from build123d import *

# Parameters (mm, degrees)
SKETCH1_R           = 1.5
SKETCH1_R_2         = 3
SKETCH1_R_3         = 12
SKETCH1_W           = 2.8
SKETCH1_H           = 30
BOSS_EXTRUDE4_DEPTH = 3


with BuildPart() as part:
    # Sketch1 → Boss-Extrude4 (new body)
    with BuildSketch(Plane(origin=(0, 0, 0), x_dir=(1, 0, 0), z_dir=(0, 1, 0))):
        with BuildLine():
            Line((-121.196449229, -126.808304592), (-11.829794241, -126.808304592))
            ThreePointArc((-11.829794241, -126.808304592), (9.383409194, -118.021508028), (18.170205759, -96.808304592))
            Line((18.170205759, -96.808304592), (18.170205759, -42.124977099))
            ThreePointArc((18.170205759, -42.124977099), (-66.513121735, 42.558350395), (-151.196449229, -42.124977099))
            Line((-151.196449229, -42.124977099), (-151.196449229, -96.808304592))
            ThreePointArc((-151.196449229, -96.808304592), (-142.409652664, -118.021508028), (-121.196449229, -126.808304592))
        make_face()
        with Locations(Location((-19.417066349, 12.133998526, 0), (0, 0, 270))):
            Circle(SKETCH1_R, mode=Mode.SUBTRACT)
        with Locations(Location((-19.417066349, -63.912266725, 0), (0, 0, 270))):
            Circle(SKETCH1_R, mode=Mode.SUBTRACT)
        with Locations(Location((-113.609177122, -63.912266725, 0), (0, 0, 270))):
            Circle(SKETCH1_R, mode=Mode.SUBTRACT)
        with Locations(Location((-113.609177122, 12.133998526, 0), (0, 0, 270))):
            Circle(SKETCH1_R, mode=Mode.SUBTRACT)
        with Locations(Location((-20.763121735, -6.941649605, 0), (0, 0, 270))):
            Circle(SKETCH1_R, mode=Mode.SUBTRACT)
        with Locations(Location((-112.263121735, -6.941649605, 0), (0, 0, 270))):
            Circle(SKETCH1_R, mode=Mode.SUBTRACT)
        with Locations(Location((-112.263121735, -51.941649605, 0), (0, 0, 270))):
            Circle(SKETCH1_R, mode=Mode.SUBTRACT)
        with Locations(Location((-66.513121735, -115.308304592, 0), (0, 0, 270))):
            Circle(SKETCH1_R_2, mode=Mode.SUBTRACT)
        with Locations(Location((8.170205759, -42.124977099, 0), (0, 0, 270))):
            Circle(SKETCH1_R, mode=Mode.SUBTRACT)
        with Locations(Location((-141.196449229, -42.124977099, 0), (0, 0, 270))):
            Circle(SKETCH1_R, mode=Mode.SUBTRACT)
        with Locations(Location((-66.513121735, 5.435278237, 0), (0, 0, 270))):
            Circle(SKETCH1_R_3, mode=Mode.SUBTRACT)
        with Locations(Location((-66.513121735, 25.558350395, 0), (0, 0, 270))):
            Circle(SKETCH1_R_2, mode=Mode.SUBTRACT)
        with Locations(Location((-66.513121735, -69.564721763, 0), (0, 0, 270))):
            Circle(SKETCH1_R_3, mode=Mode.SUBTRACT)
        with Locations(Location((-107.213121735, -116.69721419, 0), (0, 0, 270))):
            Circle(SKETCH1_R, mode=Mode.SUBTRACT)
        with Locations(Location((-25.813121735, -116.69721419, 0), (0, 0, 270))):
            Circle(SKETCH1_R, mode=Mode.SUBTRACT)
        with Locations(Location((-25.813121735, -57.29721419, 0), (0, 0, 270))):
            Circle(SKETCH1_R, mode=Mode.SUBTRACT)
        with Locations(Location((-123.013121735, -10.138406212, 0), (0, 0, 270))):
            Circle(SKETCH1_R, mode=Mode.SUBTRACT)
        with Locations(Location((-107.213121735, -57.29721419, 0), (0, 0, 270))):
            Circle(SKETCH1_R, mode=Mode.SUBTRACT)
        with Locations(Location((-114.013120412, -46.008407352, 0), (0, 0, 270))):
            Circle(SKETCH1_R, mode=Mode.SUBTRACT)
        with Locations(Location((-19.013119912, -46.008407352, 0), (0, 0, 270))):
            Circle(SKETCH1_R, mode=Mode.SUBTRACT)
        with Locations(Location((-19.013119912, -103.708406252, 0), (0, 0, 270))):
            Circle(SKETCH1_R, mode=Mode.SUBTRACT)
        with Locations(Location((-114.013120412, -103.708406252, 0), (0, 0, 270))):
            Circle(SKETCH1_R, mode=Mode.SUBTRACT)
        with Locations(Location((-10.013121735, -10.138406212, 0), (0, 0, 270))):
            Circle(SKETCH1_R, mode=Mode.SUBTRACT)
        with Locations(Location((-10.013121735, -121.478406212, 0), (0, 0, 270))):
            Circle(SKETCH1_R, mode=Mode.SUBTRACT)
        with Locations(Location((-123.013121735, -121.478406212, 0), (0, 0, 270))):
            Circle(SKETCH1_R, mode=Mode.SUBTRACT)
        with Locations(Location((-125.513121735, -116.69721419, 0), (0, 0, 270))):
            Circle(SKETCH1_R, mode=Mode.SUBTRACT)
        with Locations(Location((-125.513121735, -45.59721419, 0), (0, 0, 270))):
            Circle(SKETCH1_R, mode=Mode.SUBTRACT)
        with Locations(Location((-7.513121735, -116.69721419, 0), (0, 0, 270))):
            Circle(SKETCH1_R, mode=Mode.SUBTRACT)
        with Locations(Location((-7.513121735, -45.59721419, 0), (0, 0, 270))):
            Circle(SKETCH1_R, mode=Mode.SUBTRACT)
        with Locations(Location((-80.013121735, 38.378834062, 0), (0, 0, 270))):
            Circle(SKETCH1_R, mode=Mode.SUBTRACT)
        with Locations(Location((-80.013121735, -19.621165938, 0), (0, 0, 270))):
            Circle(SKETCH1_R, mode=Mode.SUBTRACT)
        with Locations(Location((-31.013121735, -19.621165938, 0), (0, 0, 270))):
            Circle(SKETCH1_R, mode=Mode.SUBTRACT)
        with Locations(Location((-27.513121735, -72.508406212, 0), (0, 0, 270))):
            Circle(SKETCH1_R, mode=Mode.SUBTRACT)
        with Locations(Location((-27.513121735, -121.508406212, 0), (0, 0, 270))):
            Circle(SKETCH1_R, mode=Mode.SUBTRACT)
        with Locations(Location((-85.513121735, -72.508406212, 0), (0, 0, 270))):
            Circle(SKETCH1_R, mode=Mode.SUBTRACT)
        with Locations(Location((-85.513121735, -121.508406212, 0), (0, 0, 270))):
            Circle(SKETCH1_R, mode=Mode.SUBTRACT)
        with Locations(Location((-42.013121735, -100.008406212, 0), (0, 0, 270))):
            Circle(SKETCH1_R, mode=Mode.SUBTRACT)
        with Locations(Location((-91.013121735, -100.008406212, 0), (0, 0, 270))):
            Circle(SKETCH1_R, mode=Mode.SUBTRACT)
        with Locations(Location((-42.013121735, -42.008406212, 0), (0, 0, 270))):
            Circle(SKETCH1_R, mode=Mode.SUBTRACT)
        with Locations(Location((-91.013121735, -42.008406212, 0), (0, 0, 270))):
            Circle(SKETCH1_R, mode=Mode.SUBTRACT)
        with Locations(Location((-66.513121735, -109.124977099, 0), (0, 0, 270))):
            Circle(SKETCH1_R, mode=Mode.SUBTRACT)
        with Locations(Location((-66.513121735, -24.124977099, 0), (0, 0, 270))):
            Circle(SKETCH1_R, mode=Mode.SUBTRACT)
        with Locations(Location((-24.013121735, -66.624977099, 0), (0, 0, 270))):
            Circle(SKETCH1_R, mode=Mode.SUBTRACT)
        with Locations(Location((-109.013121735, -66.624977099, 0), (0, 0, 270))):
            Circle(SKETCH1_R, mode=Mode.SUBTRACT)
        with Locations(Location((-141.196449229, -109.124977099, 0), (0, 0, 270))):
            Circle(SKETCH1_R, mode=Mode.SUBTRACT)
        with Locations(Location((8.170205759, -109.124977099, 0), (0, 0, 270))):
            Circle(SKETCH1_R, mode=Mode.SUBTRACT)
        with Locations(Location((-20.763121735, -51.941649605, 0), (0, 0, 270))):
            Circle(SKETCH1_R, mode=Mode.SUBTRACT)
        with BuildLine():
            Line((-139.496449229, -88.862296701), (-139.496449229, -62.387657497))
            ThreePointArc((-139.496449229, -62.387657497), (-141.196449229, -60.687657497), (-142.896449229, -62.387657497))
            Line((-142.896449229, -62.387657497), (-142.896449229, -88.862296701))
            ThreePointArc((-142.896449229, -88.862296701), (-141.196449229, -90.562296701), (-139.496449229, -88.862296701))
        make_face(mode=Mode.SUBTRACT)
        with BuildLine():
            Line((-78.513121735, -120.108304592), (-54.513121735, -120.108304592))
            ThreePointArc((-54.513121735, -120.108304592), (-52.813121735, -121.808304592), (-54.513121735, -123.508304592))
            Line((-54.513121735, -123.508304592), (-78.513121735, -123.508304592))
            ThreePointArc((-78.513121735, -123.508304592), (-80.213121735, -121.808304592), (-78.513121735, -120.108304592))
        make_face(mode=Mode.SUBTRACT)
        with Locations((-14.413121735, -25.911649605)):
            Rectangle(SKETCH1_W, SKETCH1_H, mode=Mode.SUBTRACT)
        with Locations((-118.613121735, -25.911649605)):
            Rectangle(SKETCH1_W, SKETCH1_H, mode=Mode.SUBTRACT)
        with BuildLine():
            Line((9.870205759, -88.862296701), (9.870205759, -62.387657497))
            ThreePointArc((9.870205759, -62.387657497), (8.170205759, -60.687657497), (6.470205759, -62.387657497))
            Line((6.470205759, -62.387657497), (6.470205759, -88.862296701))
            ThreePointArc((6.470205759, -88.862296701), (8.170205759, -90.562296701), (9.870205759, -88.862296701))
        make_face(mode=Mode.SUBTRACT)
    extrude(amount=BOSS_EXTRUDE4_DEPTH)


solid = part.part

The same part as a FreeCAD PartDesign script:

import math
import FreeCAD as App
import Part
import Sketcher
from FreeCAD import Vector

doc = App.newDocument("Part")
body = doc.addObject("PartDesign::Body", "Body")

# Sketch on XZ plane
sketch1 = body.newObject("Sketcher::SketchObject", "Sketch")
sketch1.AttachmentSupport = (doc.getObject("XZ_Plane"), [""])
sketch1.MapMode = "FlatFace"
sketch1.addGeometry([
    Part.LineSegment(Vector(-121.2, 126.8, 0), Vector(-11.8, 126.8, 0)),  # 0
    Part.ArcOfCircle(Part.Circle(Vector(-11.8, 96.8, 0), Vector(0, 0, 1), 30), math.radians(0), math.radians(90)),  # 1
    Part.LineSegment(Vector(18.2, 96.8, 0), Vector(18.2, 42.1, 0)),  # 2
    Part.ArcOfCircle(Part.Circle(Vector(-66.5, 42.1, 0), Vector(0, 0, 1), 84.7), math.radians(180), math.radians(360)),  # 3
    Part.LineSegment(Vector(-151.2, 42.1, 0), Vector(-151.2, 96.8, 0)),  # 4
    Part.ArcOfCircle(Part.Circle(Vector(-121.2, 96.8, 0), Vector(0, 0, 1), 30), math.radians(90), math.radians(180)),  # 5
    Part.Circle(Vector(-125.5, 116.7, 0), Vector(0, 0, 1), 1.5),  # 6
    Part.Circle(Vector(-141.2, 109.1, 0), Vector(0, 0, 1), 1.5),  # 7
    Part.Circle(Vector(-123, 121.5, 0), Vector(0, 0, 1), 1.5),  # 8
    Part.Circle(Vector(-107.2, 116.7, 0), Vector(0, 0, 1), 1.5),  # 9
    Part.Circle(Vector(-114, 103.7, 0), Vector(0, 0, 1), 1.5),  # 10
    Part.Circle(Vector(-85.5, 121.5, 0), Vector(0, 0, 1), 1.5),  # 11
    Part.Circle(Vector(-91, 100, 0), Vector(0, 0, 1), 1.5),  # 12
    Part.LineSegment(Vector(-139.5, 62.4, 0), Vector(-139.5, 88.9, 0)),  # 13
    Part.ArcOfCircle(Part.Circle(Vector(-141.2, 88.9, 0), Vector(0, 0, 1), 1.7), math.radians(0), math.radians(180)),  # 14
    Part.LineSegment(Vector(-142.9, 88.9, 0), Vector(-142.9, 62.4, 0)),  # 15
    Part.ArcOfCircle(Part.Circle(Vector(-141.2, 62.4, 0), Vector(0, 0, 1), 1.7), math.radians(180), math.radians(360)),  # 16
    Part.Circle(Vector(-113.6, 63.9, 0), Vector(0, 0, 1), 1.5),  # 17
    Part.Circle(Vector(-109, 66.6, 0), Vector(0, 0, 1), 1.5),  # 18
    Part.Circle(Vector(-141.2, 42.1, 0), Vector(0, 0, 1), 1.5),  # 19
    Part.Circle(Vector(-125.5, 45.6, 0), Vector(0, 0, 1), 1.5),  # 20
    Part.Circle(Vector(-107.2, 57.3, 0), Vector(0, 0, 1), 1.5),  # 21
    Part.Circle(Vector(-112.3, 51.9, 0), Vector(0, 0, 1), 1.5),  # 22
    Part.Circle(Vector(-114, 46, 0), Vector(0, 0, 1), 1.5),  # 23
    Part.Circle(Vector(-85.5, 72.5, 0), Vector(0, 0, 1), 1.5),  # 24
    Part.Circle(Vector(-91, 42, 0), Vector(0, 0, 1), 1.5),  # 25
    Part.ArcOfCircle(Part.Circle(Vector(-78.5, 121.8, 0), Vector(0, 0, 1), 1.7), math.radians(90), math.radians(270)),  # 26
    Part.LineSegment(Vector(-78.5, 120.1, 0), Vector(-54.5, 120.1, 0)),  # 27
    Part.ArcOfCircle(Part.Circle(Vector(-54.5, 121.8, 0), Vector(0, 0, 1), 1.7), math.radians(-90), math.radians(90)),  # 28
    Part.LineSegment(Vector(-54.5, 123.5, 0), Vector(-78.5, 123.5, 0)),  # 29
    Part.Circle(Vector(-66.5, 115.3, 0), Vector(0, 0, 1), 3),  # 30
    Part.Circle(Vector(-66.5, 109.1, 0), Vector(0, 0, 1), 1.5),  # 31
    Part.Circle(Vector(-42, 100, 0), Vector(0, 0, 1), 1.5),  # 32
    Part.Circle(Vector(-27.5, 121.5, 0), Vector(0, 0, 1), 1.5),  # 33
    Part.Circle(Vector(-25.8, 116.7, 0), Vector(0, 0, 1), 1.5),  # 34
    Part.Circle(Vector(-10, 121.5, 0), Vector(0, 0, 1), 1.5),  # 35
    Part.Circle(Vector(-19, 103.7, 0), Vector(0, 0, 1), 1.5),  # 36
    Part.Circle(Vector(-7.5, 116.7, 0), Vector(0, 0, 1), 1.5),  # 37
    Part.Circle(Vector(8.2, 109.1, 0), Vector(0, 0, 1), 1.5),  # 38
    Part.Circle(Vector(-66.5, 69.6, 0), Vector(0, 0, 1), 12),  # 39
    Part.Circle(Vector(-42, 42, 0), Vector(0, 0, 1), 1.5),  # 40
    Part.Circle(Vector(-27.5, 72.5, 0), Vector(0, 0, 1), 1.5),  # 41
    Part.Circle(Vector(-24, 66.6, 0), Vector(0, 0, 1), 1.5),  # 42
    Part.Circle(Vector(-19.4, 63.9, 0), Vector(0, 0, 1), 1.5),  # 43
    Part.LineSegment(Vector(9.9, 62.4, 0), Vector(9.9, 88.9, 0)),  # 44
    Part.ArcOfCircle(Part.Circle(Vector(8.2, 88.9, 0), Vector(0, 0, 1), 1.7), math.radians(0), math.radians(180)),  # 45
    Part.LineSegment(Vector(6.5, 88.9, 0), Vector(6.5, 62.4, 0)),  # 46
    Part.ArcOfCircle(Part.Circle(Vector(8.2, 62.4, 0), Vector(0, 0, 1), 1.7), math.radians(180), math.radians(360)),  # 47
    Part.Circle(Vector(-25.8, 57.3, 0), Vector(0, 0, 1), 1.5),  # 48
    Part.Circle(Vector(-20.8, 51.9, 0), Vector(0, 0, 1), 1.5),  # 49
    Part.Circle(Vector(-19, 46, 0), Vector(0, 0, 1), 1.5),  # 50
    Part.Circle(Vector(-7.5, 45.6, 0), Vector(0, 0, 1), 1.5),  # 51
    Part.Circle(Vector(8.2, 42.1, 0), Vector(0, 0, 1), 1.5),  # 52
    Part.LineSegment(Vector(-117.2, 40.9, 0), Vector(-120, 40.9, 0)),  # 53
    Part.LineSegment(Vector(-120, 40.9, 0), Vector(-120, 10.9, 0)),  # 54
    Part.LineSegment(Vector(-120, 10.9, 0), Vector(-117.2, 10.9, 0)),  # 55
    Part.LineSegment(Vector(-117.2, 10.9, 0), Vector(-117.2, 40.9, 0)),  # 56
    Part.Circle(Vector(-123, 10.1, 0), Vector(0, 0, 1), 1.5),  # 57
    Part.Circle(Vector(-112.3, 6.9, 0), Vector(0, 0, 1), 1.5),  # 58
    Part.Circle(Vector(-80, 19.6, 0), Vector(0, 0, 1), 1.5),  # 59
    Part.Circle(Vector(-113.6, -12.1, 0), Vector(0, 0, 1), 1.5),  # 60
    Part.Circle(Vector(-80, -38.4, 0), Vector(0, 0, 1), 1.5),  # 61
    Part.Circle(Vector(-66.5, 24.1, 0), Vector(0, 0, 1), 1.5),  # 62
    Part.Circle(Vector(-31, 19.6, 0), Vector(0, 0, 1), 1.5),  # 63
    Part.LineSegment(Vector(-13, 40.9, 0), Vector(-15.8, 40.9, 0)),  # 64
    Part.LineSegment(Vector(-15.8, 40.9, 0), Vector(-15.8, 10.9, 0)),  # 65
    Part.LineSegment(Vector(-15.8, 10.9, 0), Vector(-13, 10.9, 0)),  # 66
    Part.LineSegment(Vector(-13, 10.9, 0), Vector(-13, 40.9, 0)),  # 67
    Part.Circle(Vector(-20.8, 6.9, 0), Vector(0, 0, 1), 1.5),  # 68
    Part.Circle(Vector(-10, 10.1, 0), Vector(0, 0, 1), 1.5),  # 69
    Part.Circle(Vector(-66.5, -5.4, 0), Vector(0, 0, 1), 12),  # 70
    Part.Circle(Vector(-66.5, -25.6, 0), Vector(0, 0, 1), 3),  # 71
    Part.Circle(Vector(-19.4, -12.1, 0), Vector(0, 0, 1), 1.5),  # 72
], False)
sketch1.addConstraint([
    Sketcher.Constraint("Tangent", 0, 2, 1, 2),
    Sketcher.Constraint("Tangent", 1, 1, 2, 1),
    Sketcher.Constraint("Tangent", 2, 2, 3, 2),
    Sketcher.Constraint("Tangent", 3, 1, 4, 1),
    Sketcher.Constraint("Tangent", 4, 2, 5, 2),
    Sketcher.Constraint("Tangent", 5, 1, 0, 1),
    Sketcher.Constraint("Tangent", 13, 2, 14, 1),
    Sketcher.Constraint("Tangent", 14, 2, 15, 1),
    Sketcher.Constraint("Tangent", 15, 2, 16, 1),
    Sketcher.Constraint("Tangent", 16, 2, 13, 1),
    Sketcher.Constraint("Tangent", 26, 2, 27, 1),
    Sketcher.Constraint("Tangent", 27, 2, 28, 1),
    Sketcher.Constraint("Tangent", 28, 2, 29, 1),
    Sketcher.Constraint("Tangent", 29, 2, 26, 1),
    Sketcher.Constraint("Tangent", 44, 2, 45, 1),
    Sketcher.Constraint("Tangent", 45, 2, 46, 1),
    Sketcher.Constraint("Tangent", 46, 2, 47, 1),
    Sketcher.Constraint("Tangent", 47, 2, 44, 1),
    Sketcher.Constraint("Coincident", 53, 2, 54, 1),
    Sketcher.Constraint("Coincident", 54, 2, 55, 1),
    Sketcher.Constraint("Coincident", 55, 2, 56, 1),
    Sketcher.Constraint("Coincident", 56, 2, 53, 1),
    Sketcher.Constraint("Coincident", 64, 2, 65, 1),
    Sketcher.Constraint("Coincident", 65, 2, 66, 1),
    Sketcher.Constraint("Coincident", 66, 2, 67, 1),
    Sketcher.Constraint("Coincident", 67, 2, 64, 1),
    Sketcher.Constraint("Horizontal", 0),
    Sketcher.Constraint("Vertical", 2),
    Sketcher.Constraint("Vertical", 4),
    Sketcher.Constraint("Vertical", 13),
    Sketcher.Constraint("Vertical", 15),
    Sketcher.Constraint("Horizontal", 27),
    Sketcher.Constraint("Horizontal", 29),
    Sketcher.Constraint("Vertical", 44),
    Sketcher.Constraint("Vertical", 46),
    Sketcher.Constraint("Horizontal", 53),
    Sketcher.Constraint("Vertical", 54),
    Sketcher.Constraint("Horizontal", 55),
    Sketcher.Constraint("Vertical", 56),
    Sketcher.Constraint("Horizontal", 64),
    Sketcher.Constraint("Vertical", 65),
    Sketcher.Constraint("Horizontal", 66),
    Sketcher.Constraint("Vertical", 67),
    Sketcher.Constraint("Equal", 1, 5),
    Sketcher.Constraint("Equal", 6, 7),
    Sketcher.Constraint("Equal", 7, 8),
    Sketcher.Constraint("Equal", 8, 9),
    Sketcher.Constraint("Equal", 9, 10),
    Sketcher.Constraint("Equal", 10, 11),
    Sketcher.Constraint("Equal", 11, 12),
    Sketcher.Constraint("Equal", 12, 17),
    Sketcher.Constraint("Equal", 17, 18),
    Sketcher.Constraint("Equal", 18, 19),
    Sketcher.Constraint("Equal", 19, 20),
    Sketcher.Constraint("Equal", 20, 21),
    Sketcher.Constraint("Equal", 21, 22),
    Sketcher.Constraint("Equal", 22, 23),
    Sketcher.Constraint("Equal", 23, 24),
    Sketcher.Constraint("Equal", 24, 25),
    Sketcher.Constraint("Equal", 16, 26),
    Sketcher.Constraint("Equal", 25, 31),
    Sketcher.Constraint("Equal", 31, 32),
    Sketcher.Constraint("Equal", 32, 33),
    Sketcher.Constraint("Equal", 33, 34),
    Sketcher.Constraint("Equal", 34, 35),
    Sketcher.Constraint("Equal", 35, 36),
    Sketcher.Constraint("Equal", 36, 37),
    Sketcher.Constraint("Equal", 37, 38),
    Sketcher.Constraint("Equal", 38, 40),
    Sketcher.Constraint("Equal", 40, 41),
    Sketcher.Constraint("Equal", 41, 42),
    Sketcher.Constraint("Equal", 42, 43),
    Sketcher.Constraint("Equal", 28, 45),
    Sketcher.Constraint("Equal", 43, 48),
    Sketcher.Constraint("Equal", 48, 49),
    Sketcher.Constraint("Equal", 49, 50),
    Sketcher.Constraint("Equal", 50, 51),
    Sketcher.Constraint("Equal", 51, 52),
    Sketcher.Constraint("Equal", 52, 57),
    Sketcher.Constraint("Equal", 57, 58),
    Sketcher.Constraint("Equal", 58, 59),
    Sketcher.Constraint("Equal", 59, 60),
    Sketcher.Constraint("Equal", 60, 61),
    Sketcher.Constraint("Equal", 61, 62),
    Sketcher.Constraint("Equal", 62, 63),
    Sketcher.Constraint("Equal", 63, 68),
    Sketcher.Constraint("Equal", 68, 69),
    Sketcher.Constraint("Equal", 39, 70),
    Sketcher.Constraint("Equal", 30, 71),
    Sketcher.Constraint("Equal", 69, 72),
    Sketcher.Constraint("Horizontal", 6, 3, 9, 3),
    Sketcher.Constraint("Horizontal", 3, 3, 19, 3),
    Sketcher.Constraint("Horizontal", 7, 3, 31, 3),
    Sketcher.Constraint("Horizontal", 12, 3, 32, 3),
    Sketcher.Constraint("Horizontal", 11, 3, 33, 3),
    Sketcher.Constraint("Horizontal", 9, 3, 34, 3),
    Sketcher.Constraint("Horizontal", 8, 3, 35, 3),
    Sketcher.Constraint("Horizontal", 10, 3, 36, 3),
    Sketcher.Constraint("Horizontal", 34, 3, 37, 3),
    Sketcher.Constraint("Horizontal", 31, 3, 38, 3),
    Sketcher.Constraint("Horizontal", 25, 3, 40, 3),
    Sketcher.Constraint("Horizontal", 24, 3, 41, 3),
    Sketcher.Constraint("Horizontal", 18, 3, 42, 3),
    Sketcher.Constraint("Horizontal", 17, 3, 43, 3),
    Sketcher.Constraint("Horizontal", 14, 3, 45, 3),
    Sketcher.Constraint("Horizontal", 16, 3, 47, 3),
    Sketcher.Constraint("Horizontal", 21, 3, 48, 3),
    Sketcher.Constraint("Horizontal", 22, 3, 49, 3),
    Sketcher.Constraint("Horizontal", 23, 3, 50, 3),
    Sketcher.Constraint("Horizontal", 20, 3, 51, 3),
    Sketcher.Constraint("Horizontal", 19, 3, 52, 3),
    Sketcher.Constraint("Horizontal", 59, 3, 63, 3),
    Sketcher.Constraint("Horizontal", 58, 3, 68, 3),
    Sketcher.Constraint("Horizontal", 57, 3, 69, 3),
    Sketcher.Constraint("Horizontal", 60, 3, 72, 3),
    Sketcher.Constraint("Horizontal", 56, 2, 64, 2),
    Sketcher.Constraint("Horizontal", 55, 2, 65, 2),
    Sketcher.Constraint("Vertical", 7, 3, 14, 3),
    Sketcher.Constraint("Vertical", 16, 3, 19, 3),
    Sketcher.Constraint("Vertical", 6, 3, 20, 3),
    Sketcher.Constraint("Vertical", 9, 3, 21, 3),
    Sketcher.Constraint("Vertical", 10, 3, 23, 3),
    Sketcher.Constraint("Vertical", 11, 3, 24, 3),
    Sketcher.Constraint("Vertical", 12, 3, 25, 3),
    Sketcher.Constraint("Vertical", 3, 3, 30, 3),
    Sketcher.Constraint("Vertical", 30, 3, 31, 3),
    Sketcher.Constraint("Vertical", 31, 3, 39, 3),
    Sketcher.Constraint("Vertical", 32, 3, 40, 3),
    Sketcher.Constraint("Vertical", 33, 3, 41, 3),
    Sketcher.Constraint("Vertical", 38, 3, 45, 3),
    Sketcher.Constraint("Vertical", 34, 3, 48, 3),
    Sketcher.Constraint("Vertical", 36, 3, 50, 3),
    Sketcher.Constraint("Vertical", 37, 3, 51, 3),
    Sketcher.Constraint("Vertical", 47, 3, 52, 3),
    Sketcher.Constraint("Vertical", 8, 3, 57, 3),
    Sketcher.Constraint("Vertical", 22, 3, 58, 3),
    Sketcher.Constraint("Vertical", 17, 3, 60, 3),
    Sketcher.Constraint("Vertical", 59, 3, 61, 3),
    Sketcher.Constraint("Vertical", 39, 3, 62, 3),
    Sketcher.Constraint("Vertical", 49, 3, 68, 3),
    Sketcher.Constraint("Vertical", 35, 3, 69, 3),
    Sketcher.Constraint("Vertical", 62, 3, 70, 3),
    Sketcher.Constraint("Vertical", 70, 3, 71, 3),
    Sketcher.Constraint("Vertical", 43, 3, 72, 3),
    Sketcher.Constraint("Equal", 55, 64),
    Sketcher.Constraint("Diameter", 6, 3.0),
    Sketcher.Constraint("Diameter", 30, 6.0),
    Sketcher.Constraint("Diameter", 39, 24.0),
    Sketcher.Constraint("Radius", 1, 30.0),
    Sketcher.Constraint("Radius", 14, 1.7),
    Sketcher.Constraint("DistanceX", 27, 1, 27, 2, 24.0),
    Sketcher.Constraint("DistanceY", 54, 2, 54, 1, 30.0),
    Sketcher.Constraint("DistanceX", 53, 2, 53, 1, 2.8),
    Sketcher.Constraint("DistanceY", 60, 3, -1, 1, 12.133999),
    Sketcher.Constraint("Radius", 3, 84.683327),
    Sketcher.Constraint("DistanceY", 13, 1, 13, 2, 26.474639),
    Sketcher.Constraint("DistanceY", 2, 2, 2, 1, 54.683327),
    Sketcher.Constraint("DistanceX", 3, 3, -1, 1, 66.513122),
    Sketcher.Constraint("DistanceX", 6, 3, -1, 1, 125.513122),
    Sketcher.Constraint("DistanceX", 7, 3, -1, 1, 141.196449),
    Sketcher.Constraint("DistanceX", 8, 3, -1, 1, 123.013122),
    Sketcher.Constraint("DistanceX", 9, 3, -1, 1, 107.213122),
    Sketcher.Constraint("DistanceX", 10, 3, -1, 1, 114.01312),
    Sketcher.Constraint("DistanceX", 11, 3, -1, 1, 85.513122),
    Sketcher.Constraint("DistanceX", 12, 3, -1, 1, 91.013122),
    Sketcher.Constraint("DistanceX", 18, 3, -1, 1, 109.013122),
    Sketcher.Constraint("DistanceX", 22, 3, -1, 1, 112.263122),
    Sketcher.Constraint("DistanceY", -1, 1, 22, 3, 51.94165),
    Sketcher.Constraint("DistanceX", 26, 3, -1, 1, 78.513122),
    Sketcher.Constraint("DistanceX", 32, 3, -1, 1, 42.013122),
    Sketcher.Constraint("DistanceX", 33, 3, -1, 1, 27.513122),
    Sketcher.Constraint("DistanceX", 34, 3, -1, 1, 25.813122),
    Sketcher.Constraint("DistanceX", 35, 3, -1, 1, 10.013122),
    Sketcher.Constraint("DistanceX", 36, 3, -1, 1, 19.01312),
    Sketcher.Constraint("DistanceX", 37, 3, -1, 1, 7.513122),
    Sketcher.Constraint("DistanceY", -1, 1, 39, 3, 69.564722),
    Sketcher.Constraint("DistanceX", 42, 3, -1, 1, 24.013122),
    Sketcher.Constraint("DistanceX", 49, 3, -1, 1, 20.763122),
    Sketcher.Constraint("DistanceY", -1, 1, 58, 3, 6.94165),
    Sketcher.Constraint("DistanceX", 59, 3, -1, 1, 80.013122),
    Sketcher.Constraint("DistanceX", 63, 3, -1, 1, 31.013122),
    Sketcher.Constraint("DistanceY", 70, 3, -1, 1, 5.435278),
    Sketcher.Constraint("DistanceY", 71, 3, -1, 1, 25.55835),
    Sketcher.Constraint("DistanceX", 53, 2, -1, 1, 120.013122),
    Sketcher.Constraint("DistanceY", -1, 1, 53, 2, 40.91165),
    Sketcher.Constraint("DistanceX", 64, 2, -1, 1, 15.813122),
    Sketcher.Constraint("DistanceY", -1, 1, 1, 3, 96.808305),
    Sketcher.Constraint("DistanceY", -1, 1, 6, 3, 116.697214),
    Sketcher.Constraint("DistanceY", -1, 1, 7, 3, 109.124977),
    Sketcher.Constraint("DistanceY", -1, 1, 8, 3, 121.478406),
    Sketcher.Constraint("DistanceY", -1, 1, 10, 3, 103.708406),
    Sketcher.Constraint("DistanceY", -1, 1, 11, 3, 121.508406),
    Sketcher.Constraint("DistanceY", -1, 1, 12, 3, 100.008406),
    Sketcher.Constraint("DistanceY", -1, 1, 14, 3, 88.862297),
    Sketcher.Constraint("DistanceX", 17, 3, -1, 1, 113.609177),
    Sketcher.Constraint("DistanceY", -1, 1, 17, 3, 63.912267),
    Sketcher.Constraint("DistanceY", -1, 1, 18, 3, 66.624977),
    Sketcher.Constraint("DistanceY", -1, 1, 20, 3, 45.597214),
    Sketcher.Constraint("DistanceY", -1, 1, 21, 3, 57.297214),
    Sketcher.Constraint("DistanceY", -1, 1, 23, 3, 46.008407),
    Sketcher.Constraint("DistanceY", -1, 1, 24, 3, 72.508406),
    Sketcher.Constraint("DistanceY", -1, 1, 25, 3, 42.008406),
    Sketcher.Constraint("DistanceY", -1, 1, 26, 3, 121.808305),
    Sketcher.Constraint("DistanceY", -1, 1, 30, 3, 115.308305),
    Sketcher.Constraint("DistanceX", -1, 1, 38, 3, 8.170206),
    Sketcher.Constraint("DistanceX", 43, 3, -1, 1, 19.417066),
    Sketcher.Constraint("DistanceY", -1, 1, 57, 3, 10.138406),
    Sketcher.Constraint("DistanceY", -1, 1, 59, 3, 19.621166),
    Sketcher.Constraint("DistanceY", 61, 3, -1, 1, 38.378834),
    Sketcher.Constraint("DistanceY", -1, 1, 62, 3, 24.124977),
])
pad1 = body.newObject("PartDesign::Pad", "Pad")
pad1.Profile = sketch1
pad1.Length = 3
pad1.Reversed = True

doc.recompute()
